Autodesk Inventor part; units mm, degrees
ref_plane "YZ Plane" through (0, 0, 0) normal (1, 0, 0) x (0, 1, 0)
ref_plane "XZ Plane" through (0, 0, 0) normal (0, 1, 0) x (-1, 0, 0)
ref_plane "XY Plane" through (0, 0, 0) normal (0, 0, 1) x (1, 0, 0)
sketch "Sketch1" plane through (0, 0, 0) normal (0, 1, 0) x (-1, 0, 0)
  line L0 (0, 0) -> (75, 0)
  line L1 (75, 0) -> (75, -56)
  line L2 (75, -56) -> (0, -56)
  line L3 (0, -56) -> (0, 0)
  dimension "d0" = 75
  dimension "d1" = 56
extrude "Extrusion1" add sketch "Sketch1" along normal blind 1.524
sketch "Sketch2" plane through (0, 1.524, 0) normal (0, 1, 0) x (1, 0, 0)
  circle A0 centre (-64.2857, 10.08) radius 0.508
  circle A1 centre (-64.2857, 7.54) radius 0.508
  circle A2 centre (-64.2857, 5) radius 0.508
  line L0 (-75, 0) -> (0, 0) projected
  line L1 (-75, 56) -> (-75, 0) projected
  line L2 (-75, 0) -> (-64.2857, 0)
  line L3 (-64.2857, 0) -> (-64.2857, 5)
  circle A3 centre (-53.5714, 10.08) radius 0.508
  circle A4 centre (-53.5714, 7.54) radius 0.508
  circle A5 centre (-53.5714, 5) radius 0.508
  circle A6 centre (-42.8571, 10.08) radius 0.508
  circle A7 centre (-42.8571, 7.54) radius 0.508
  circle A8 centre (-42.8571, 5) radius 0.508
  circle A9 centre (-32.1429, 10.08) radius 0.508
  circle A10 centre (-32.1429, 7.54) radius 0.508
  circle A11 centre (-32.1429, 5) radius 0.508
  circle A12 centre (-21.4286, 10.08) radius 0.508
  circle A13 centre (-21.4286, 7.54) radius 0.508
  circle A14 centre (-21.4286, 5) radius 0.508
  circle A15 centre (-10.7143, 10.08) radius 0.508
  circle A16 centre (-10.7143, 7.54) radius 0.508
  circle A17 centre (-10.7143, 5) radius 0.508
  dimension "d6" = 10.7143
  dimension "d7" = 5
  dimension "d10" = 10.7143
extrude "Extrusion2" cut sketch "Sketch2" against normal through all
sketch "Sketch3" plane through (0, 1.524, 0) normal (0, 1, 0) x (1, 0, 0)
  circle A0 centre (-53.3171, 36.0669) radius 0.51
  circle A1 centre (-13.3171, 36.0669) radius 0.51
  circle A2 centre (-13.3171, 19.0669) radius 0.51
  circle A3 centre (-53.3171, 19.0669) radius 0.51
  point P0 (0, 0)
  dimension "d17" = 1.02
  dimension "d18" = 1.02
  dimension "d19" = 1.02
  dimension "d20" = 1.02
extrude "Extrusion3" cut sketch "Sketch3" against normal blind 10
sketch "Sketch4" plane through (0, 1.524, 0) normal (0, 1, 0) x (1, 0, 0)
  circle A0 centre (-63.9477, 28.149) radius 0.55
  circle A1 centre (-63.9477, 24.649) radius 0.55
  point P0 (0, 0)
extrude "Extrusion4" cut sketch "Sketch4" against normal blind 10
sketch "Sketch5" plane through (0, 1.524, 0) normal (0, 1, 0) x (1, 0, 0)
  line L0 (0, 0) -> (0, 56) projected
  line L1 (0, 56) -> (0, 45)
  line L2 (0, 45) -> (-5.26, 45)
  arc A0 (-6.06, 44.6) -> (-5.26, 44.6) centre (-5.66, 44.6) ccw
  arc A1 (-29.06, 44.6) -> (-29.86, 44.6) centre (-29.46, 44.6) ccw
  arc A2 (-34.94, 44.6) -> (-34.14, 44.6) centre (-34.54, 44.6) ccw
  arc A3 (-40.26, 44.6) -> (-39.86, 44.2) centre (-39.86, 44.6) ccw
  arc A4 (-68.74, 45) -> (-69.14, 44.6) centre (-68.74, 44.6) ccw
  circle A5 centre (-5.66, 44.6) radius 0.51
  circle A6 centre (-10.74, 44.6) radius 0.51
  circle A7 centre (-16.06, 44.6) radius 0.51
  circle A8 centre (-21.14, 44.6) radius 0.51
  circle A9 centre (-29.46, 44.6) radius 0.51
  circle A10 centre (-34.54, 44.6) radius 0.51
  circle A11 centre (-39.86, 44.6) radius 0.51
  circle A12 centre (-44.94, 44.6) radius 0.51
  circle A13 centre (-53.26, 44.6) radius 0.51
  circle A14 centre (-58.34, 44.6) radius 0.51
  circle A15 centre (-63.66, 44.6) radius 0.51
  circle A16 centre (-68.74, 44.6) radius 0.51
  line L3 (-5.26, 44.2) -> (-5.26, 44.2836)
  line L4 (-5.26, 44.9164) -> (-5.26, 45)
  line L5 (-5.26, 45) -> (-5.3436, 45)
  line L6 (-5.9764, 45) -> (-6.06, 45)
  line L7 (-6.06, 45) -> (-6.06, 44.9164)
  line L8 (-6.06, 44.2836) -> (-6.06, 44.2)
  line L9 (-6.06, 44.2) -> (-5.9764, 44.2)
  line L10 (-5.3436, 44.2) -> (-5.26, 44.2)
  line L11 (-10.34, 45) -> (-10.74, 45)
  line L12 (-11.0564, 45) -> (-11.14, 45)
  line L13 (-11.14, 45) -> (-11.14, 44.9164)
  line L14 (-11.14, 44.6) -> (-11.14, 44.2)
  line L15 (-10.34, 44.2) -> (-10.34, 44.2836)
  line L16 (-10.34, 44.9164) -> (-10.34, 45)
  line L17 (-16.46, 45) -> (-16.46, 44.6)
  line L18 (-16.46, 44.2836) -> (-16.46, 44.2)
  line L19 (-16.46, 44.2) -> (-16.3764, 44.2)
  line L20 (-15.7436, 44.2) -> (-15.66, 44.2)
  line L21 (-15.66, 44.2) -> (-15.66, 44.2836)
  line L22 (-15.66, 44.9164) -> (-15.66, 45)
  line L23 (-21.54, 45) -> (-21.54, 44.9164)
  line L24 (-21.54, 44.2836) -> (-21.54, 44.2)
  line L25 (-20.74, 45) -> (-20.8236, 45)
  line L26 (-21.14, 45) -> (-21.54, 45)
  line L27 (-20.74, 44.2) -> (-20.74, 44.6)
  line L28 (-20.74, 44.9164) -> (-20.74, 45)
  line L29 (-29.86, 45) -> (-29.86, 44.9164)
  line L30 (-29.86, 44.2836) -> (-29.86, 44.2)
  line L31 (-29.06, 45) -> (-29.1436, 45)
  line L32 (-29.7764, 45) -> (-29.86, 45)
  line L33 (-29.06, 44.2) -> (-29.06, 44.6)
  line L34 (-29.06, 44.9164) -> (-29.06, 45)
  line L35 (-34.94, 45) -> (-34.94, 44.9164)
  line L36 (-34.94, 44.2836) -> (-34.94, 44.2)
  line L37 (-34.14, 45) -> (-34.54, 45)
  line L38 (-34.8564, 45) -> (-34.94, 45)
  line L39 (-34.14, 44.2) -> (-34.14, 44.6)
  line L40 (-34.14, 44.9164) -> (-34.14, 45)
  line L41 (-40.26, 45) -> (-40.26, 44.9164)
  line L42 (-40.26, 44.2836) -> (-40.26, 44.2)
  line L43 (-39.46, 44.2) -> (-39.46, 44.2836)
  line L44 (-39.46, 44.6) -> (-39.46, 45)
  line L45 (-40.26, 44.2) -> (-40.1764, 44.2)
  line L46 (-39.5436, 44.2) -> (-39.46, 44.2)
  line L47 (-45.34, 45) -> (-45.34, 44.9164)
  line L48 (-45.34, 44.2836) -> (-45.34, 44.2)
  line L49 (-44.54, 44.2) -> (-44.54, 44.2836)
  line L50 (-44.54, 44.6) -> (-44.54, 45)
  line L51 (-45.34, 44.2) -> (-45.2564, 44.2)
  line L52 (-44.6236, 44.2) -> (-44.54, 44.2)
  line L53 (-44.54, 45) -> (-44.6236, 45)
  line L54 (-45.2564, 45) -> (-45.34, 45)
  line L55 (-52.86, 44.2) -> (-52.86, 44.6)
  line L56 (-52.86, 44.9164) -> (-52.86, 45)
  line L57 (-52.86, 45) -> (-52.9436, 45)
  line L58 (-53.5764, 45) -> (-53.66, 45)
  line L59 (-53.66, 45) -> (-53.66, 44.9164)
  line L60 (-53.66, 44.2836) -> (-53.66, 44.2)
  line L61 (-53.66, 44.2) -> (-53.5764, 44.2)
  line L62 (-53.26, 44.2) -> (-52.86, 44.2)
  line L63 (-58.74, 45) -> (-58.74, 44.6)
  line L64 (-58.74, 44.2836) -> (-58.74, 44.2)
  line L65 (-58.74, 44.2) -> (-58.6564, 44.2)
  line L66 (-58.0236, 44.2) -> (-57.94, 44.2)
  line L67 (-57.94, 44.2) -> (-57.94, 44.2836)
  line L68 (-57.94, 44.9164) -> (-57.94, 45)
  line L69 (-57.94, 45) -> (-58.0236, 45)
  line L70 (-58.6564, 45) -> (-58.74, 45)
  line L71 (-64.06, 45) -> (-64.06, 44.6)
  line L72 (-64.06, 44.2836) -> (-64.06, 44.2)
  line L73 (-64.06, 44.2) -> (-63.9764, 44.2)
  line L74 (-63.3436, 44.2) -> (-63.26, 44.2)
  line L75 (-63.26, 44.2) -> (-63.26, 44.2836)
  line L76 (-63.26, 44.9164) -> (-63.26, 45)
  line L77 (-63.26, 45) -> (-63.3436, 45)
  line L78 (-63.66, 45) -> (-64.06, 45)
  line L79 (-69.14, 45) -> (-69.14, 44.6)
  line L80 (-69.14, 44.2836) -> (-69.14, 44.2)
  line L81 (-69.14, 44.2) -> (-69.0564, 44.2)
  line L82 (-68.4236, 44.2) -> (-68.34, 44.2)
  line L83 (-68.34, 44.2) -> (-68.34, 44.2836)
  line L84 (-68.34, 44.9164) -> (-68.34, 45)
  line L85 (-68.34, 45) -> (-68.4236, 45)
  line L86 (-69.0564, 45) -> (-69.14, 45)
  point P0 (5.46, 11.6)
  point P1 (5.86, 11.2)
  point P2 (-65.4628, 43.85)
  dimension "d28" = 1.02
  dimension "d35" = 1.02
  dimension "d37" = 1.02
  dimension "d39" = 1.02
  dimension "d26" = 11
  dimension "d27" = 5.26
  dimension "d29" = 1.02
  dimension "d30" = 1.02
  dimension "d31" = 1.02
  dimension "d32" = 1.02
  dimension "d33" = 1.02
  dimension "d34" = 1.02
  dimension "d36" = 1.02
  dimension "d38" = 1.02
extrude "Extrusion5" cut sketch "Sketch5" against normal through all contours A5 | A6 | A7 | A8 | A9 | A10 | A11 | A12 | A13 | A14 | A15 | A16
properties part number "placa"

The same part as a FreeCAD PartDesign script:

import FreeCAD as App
import Part
import Sketcher


def add_polygon(sketch, points):
    """Adds a closed chain of lines whose ends are joined by coincident constraints."""
    first, n = sketch.GeometryCount, len(points)
    for a, b in zip(points, points[1:] + points[:1]):
        sketch.addGeometry(Part.LineSegment(App.Vector(*a, 0), App.Vector(*b, 0)), False)
    for i in range(n):
        sketch.addConstraint(Sketcher.Constraint("Coincident", first + i, 2, first + (i + 1) % n, 1))

doc = App.newDocument("Part")
body = doc.addObject("PartDesign::Body", "Body")

sketch1 = body.newObject("Sketcher::SketchObject", "Sketch")
sketch1.AttachmentSupport = (doc.getObject("XZ_Plane"), [""])
sketch1.MapMode = "FlatFace"
add_polygon(sketch1, [(-75, 0), (0, 0), (0, -56), (-75, -56)])
sketch1.addConstraint(Sketcher.Constraint("Horizontal", 0))
sketch1.addConstraint(Sketcher.Constraint("Vertical", 1))
sketch1.addConstraint(Sketcher.Constraint("Horizontal", 2))
sketch1.addConstraint(Sketcher.Constraint("Vertical", 3))
sketch1.addConstraint(Sketcher.Constraint("Coincident", 0, 2, -1, 1))
sketch1.addConstraint(Sketcher.Constraint("DistanceX", 0, 1, 0, 2, 75.0))
sketch1.addConstraint(Sketcher.Constraint("DistanceY", 1, 2, 1, 1, 56.0))
pad1 = body.newObject("PartDesign::Pad", "Pad")
pad1.Profile = sketch1
pad1.Length = 1.524
pad1.Reversed = True

sketch2 = body.newObject("Sketcher::SketchObject", "Sketch001")
sketch2.AttachmentSupport = (doc.getObject("XZ_Plane"), [""])
sketch2.MapMode = "FlatFace"
sketch2.AttachmentOffset = App.Placement(App.Vector(0, 0, -1.524), App.Rotation())
sketch2.addGeometry(Part.Circle(App.Vector(-64.3, -10.1, 0), App.Vector(0, 0, 1), 0.5), False)
sketch2.addGeometry(Part.Circle(App.Vector(-64.3, -7.5, 0), App.Vector(0, 0, 1), 0.5), False)
sketch2.addGeometry(Part.Circle(App.Vector(-64.3, -5, 0), App.Vector(0, 0, 1), 0.5), False)
sketch2.addGeometry(Part.Circle(App.Vector(-53.6, -10.1, 0), App.Vector(0, 0, 1), 0.5), False)
sketch2.addGeometry(Part.Circle(App.Vector(-53.6, -7.5, 0), App.Vector(0, 0, 1), 0.5), False)
sketch2.addGeometry(Part.Circle(App.Vector(-53.6, -5, 0), App.Vector(0, 0, 1), 0.5), False)
sketch2.addGeometry(Part.Circle(App.Vector(-42.9, -10.1, 0), App.Vector(0, 0, 1), 0.5), False)
sketch2.addGeometry(Part.Circle(App.Vector(-42.9, -7.5, 0), App.Vector(0, 0, 1), 0.5), False)
sketch2.addGeometry(Part.Circle(App.Vector(-42.9, -5, 0), App.Vector(0, 0, 1), 0.5), False)
sketch2.addGeometry(Part.Circle(App.Vector(-32.1, -10.1, 0), App.Vector(0, 0, 1), 0.5), False)
sketch2.addGeometry(Part.Circle(App.Vector(-32.1, -7.5, 0), App.Vector(0, 0, 1), 0.5), False)
sketch2.addGeometry(Part.Circle(App.Vector(-32.1, -5, 0), App.Vector(0, 0, 1), 0.5), False)
sketch2.addGeometry(Part.Circle(App.Vector(-21.4, -10.1, 0), App.Vector(0, 0, 1), 0.5), False)
sketch2.addGeometry(Part.Circle(App.Vector(-21.4, -7.5, 0), App.Vector(0, 0, 1), 0.5), False)
sketch2.addGeometry(Part.Circle(App.Vector(-21.4, -5, 0), App.Vector(0, 0, 1), 0.5), False)
sketch2.addGeometry(Part.Circle(App.Vector(-10.7, -10.1, 0), App.Vector(0, 0, 1), 0.5), False)
sketch2.addGeometry(Part.Circle(App.Vector(-10.7, -7.5, 0), App.Vector(0, 0, 1), 0.5), False)
sketch2.addGeometry(Part.Circle(App.Vector(-10.7, -5, 0), App.Vector(0, 0, 1), 0.5), False)
sketch2.addConstraint(Sketcher.Constraint("Equal", 0, 1))
sketch2.addConstraint(Sketcher.Constraint("Equal", 1, 2))
sketch2.addConstraint(Sketcher.Constraint("Equal", 2, 3))
sketch2.addConstraint(Sketcher.Constraint("Equal", 3, 4))
sketch2.addConstraint(Sketcher.Constraint("Equal", 4, 5))
sketch2.addConstraint(Sketcher.Constraint("Equal", 5, 6))
sketch2.addConstraint(Sketcher.Constraint("Equal", 6, 7))
sketch2.addConstraint(Sketcher.Constraint("Equal", 7, 8))
sketch2.addConstraint(Sketcher.Constraint("Equal", 8, 9))
sketch2.addConstraint(Sketcher.Constraint("Equal", 9, 10))
sketch2.addConstraint(Sketcher.Constraint("Equal", 10, 11))
sketch2.addConstraint(Sketcher.Constraint("Equal", 11, 12))
sketch2.addConstraint(Sketcher.Constraint("Equal", 12, 13))
sketch2.addConstraint(Sketcher.Constraint("Equal", 13, 14))
sketch2.addConstraint(Sketcher.Constraint("Equal", 14, 15))
sketch2.addConstraint(Sketcher.Constraint("Equal", 15, 16))
sketch2.addConstraint(Sketcher.Constraint("Equal", 16, 17))
sketch2.addConstraint(Sketcher.Constraint("Horizontal", 0, 3, 3, 3))
sketch2.addConstraint(Sketcher.Constraint("Horizontal", 1, 3, 4, 3))
sketch2.addConstraint(Sketcher.Constraint("Horizontal", 2, 3, 5, 3))
sketch2.addConstraint(Sketcher.Constraint("Horizontal", 3, 3, 6, 3))
sketch2.addConstraint(Sketcher.Constraint("Horizontal", 4, 3, 7, 3))
sketch2.addConstraint(Sketcher.Constraint("Horizontal", 5, 3, 8, 3))
sketch2.addConstraint(Sketcher.Constraint("Horizontal", 6, 3, 9, 3))
sketch2.addConstraint(Sketcher.Constraint("Horizontal", 7, 3, 10, 3))
sketch2.addConstraint(Sketcher.Constraint("Horizontal", 8, 3, 11, 3))
sketch2.addConstraint(Sketcher.Constraint("Horizontal", 9, 3, 12, 3))
sketch2.addConstraint(Sketcher.Constraint("Horizontal", 10, 3, 13, 3))
sketch2.addConstraint(Sketcher.Constraint("Horizontal", 11, 3, 14, 3))
sketch2.addConstraint(Sketcher.Constraint("Horizontal", 12, 3, 15, 3))
sketch2.addConstraint(Sketcher.Constraint("Horizontal", 13, 3, 16, 3))
sketch2.addConstraint(Sketcher.Constraint("Horizontal", 14, 3, 17, 3))
sketch2.addConstraint(Sketcher.Constraint("Vertical", 0, 3, 1, 3))
sketch2.addConstraint(Sketcher.Constraint("Vertical", 1, 3, 2, 3))
sketch2.addConstraint(Sketcher.Constraint("Vertical", 3, 3, 4, 3))
sketch2.addConstraint(Sketcher.Constraint("Vertical", 4, 3, 5, 3))
sketch2.addConstraint(Sketcher.Constraint("Vertical", 6, 3, 7, 3))
sketch2.addConstraint(Sketcher.Constraint("Vertical", 7, 3, 8, 3))
sketch2.addConstraint(Sketcher.Constraint("Vertical", 9, 3, 10, 3))
sketch2.addConstraint(Sketcher.Constraint("Vertical", 10, 3, 11, 3))
sketch2.addConstraint(Sketcher.Constraint("Vertical", 12, 3, 13, 3))
sketch2.addConstraint(Sketcher.Constraint("Vertical", 13, 3, 14, 3))
sketch2.addConstraint(Sketcher.Constraint("Vertical", 15, 3, 16, 3))
sketch2.addConstraint(Sketcher.Constraint("Vertical", 16, 3, 17, 3))
sketch2.addConstraint(Sketcher.Constraint("DistanceY", 2, 3, -1, 1, 5.0))
sketch2.addConstraint(Sketcher.Constraint("Diameter", 0, 1.016))
sketch2.addConstraint(Sketcher.Constraint("DistanceX", 15, 3, -1, 1, 10.7143))
sketch2.addConstraint(Sketcher.Constraint("DistanceX", 0, 3, 3, 3, 10.7143))
sketch2.addConstraint(Sketcher.Constraint("DistanceX", 3, 3, 6, 3, 10.7143))
sketch2.addConstraint(Sketcher.Constraint("DistanceX", 6, 3, 9, 3, 10.7142))
sketch2.addConstraint(Sketcher.Constraint("DistanceX", 9, 3, 12, 3, 10.7143))
sketch2.addConstraint(Sketcher.Constraint("DistanceX", 12, 3, 15, 3, 10.7143))
sketch2.addConstraint(Sketcher.Constraint("DistanceY", 0, 3, -1, 1, 10.08))
sketch2.addConstraint(Sketcher.Constraint("DistanceY", 1, 3, -1, 1, 7.54))
pocket1 = body.newObject("PartDesign::Pocket", "Pocket")
pocket1.Profile = sketch2
pocket1.Type = "ThroughAll"
pocket1.Reversed = True

sketch3 = body.newObject("Sketcher::SketchObject", "Sketch002")
sketch3.AttachmentSupport = (doc.getObject("XZ_Plane"), [""])
sketch3.MapMode = "FlatFace"
sketch3.AttachmentOffset = App.Placement(App.Vector(0, 0, -1.524), App.Rotation())
sketch3.addGeometry(Part.Circle(App.Vector(-53.3, -36.1, 0), App.Vector(0, 0, 1), 0.5), False)
sketch3.addGeometry(Part.Circle(App.Vector(-13.3, -36.1, 0), App.Vector(0, 0, 1), 0.5), False)
sketch3.addGeometry(Part.Circle(App.Vector(-13.3, -19.1, 0), App.Vector(0, 0, 1), 0.5), False)
sketch3.addGeometry(Part.Circle(App.Vector(-53.3, -19.1, 0), App.Vector(0, 0, 1), 0.5), False)
sketch3.addConstraint(Sketcher.Constraint("Equal", 0, 1))
sketch3.addConstraint(Sketcher.Constraint("Equal", 1, 2))
sketch3.addConstraint(Sketcher.Constraint("Equal", 2, 3))
sketch3.addConstraint(Sketcher.Constraint("Horizontal", 0, 3, 1, 3))
sketch3.addConstraint(Sketcher.Constraint("Horizontal", 2, 3, 3, 3))
sketch3.addConstraint(Sketcher.Constraint("Vertical", 1, 3, 2, 3))
sketch3.addConstraint(Sketcher.Constraint("Vertical", 0, 3, 3, 3))
sketch3.addConstraint(Sketcher.Constraint("Diameter", 0, 1.02))
sketch3.addConstraint(Sketcher.Constraint("DistanceX", 0, 3, 1, 3, 40.0))
sketch3.addConstraint(Sketcher.Constraint("DistanceY", 1, 3, 2, 3, 17.0))
sketch3.addConstraint(Sketcher.Constraint("DistanceX", 0, 3, -1, 1, 53.317))
sketch3.addConstraint(Sketcher.Constraint("DistanceY", 0, 3, -1, 1, 36.067))
pocket2 = body.newObject("PartDesign::Pocket", "Pocket001")
pocket2.Profile = sketch3
pocket2.Length = 10
pocket2.Reversed = True

sketch4 = body.newObject("Sketcher::SketchObject", "Sketch003")
sketch4.AttachmentSupport = (doc.getObject("XZ_Plane"), [""])
sketch4.MapMode = "FlatFace"
sketch4.AttachmentOffset = App.Placement(App.Vector(0, 0, -1.524), App.Rotation())
sketch4.addGeometry(Part.Circle(App.Vector(-63.9, -28.1, 0), App.Vector(0, 0, 1), 0.6), False)
sketch4.addGeometry(Part.Circle(App.Vector(-63.9, -24.6, 0), App.Vector(0, 0, 1), 0.6), False)
sketch4.addConstraint(Sketcher.Constraint("Equal", 0, 1))
sketch4.addConstraint(Sketcher.Constraint("Vertical", 0, 3, 1, 3))
sketch4.addConstraint(Sketcher.Constraint("Diameter", 0, 1.1))
sketch4.addConstraint(Sketcher.Constraint("DistanceY", 0, 3, 1, 3, 3.5))
sketch4.addConstraint(Sketcher.Constraint("DistanceY", 0, 3, -1, 1, 28.149))
sketch4.addConstraint(Sketcher.Constraint("DistanceX", 0, 3, -1, 1, 63.9477))
pocket3 = body.newObject("PartDesign::Pocket", "Pocket002")
pocket3.Profile = sketch4
pocket3.Length = 10
pocket3.Reversed = True

sketch5 = body.newObject("Sketcher::SketchObject", "Sketch004")
sketch5.AttachmentSupport = (doc.getObject("XZ_Plane"), [""])
sketch5.MapMode = "FlatFace"
sketch5.AttachmentOffset = App.Placement(App.Vector(0, 0, -1.524), App.Rotation())
sketch5.addGeometry(Part.Circle(App.Vector(-5.7, -44.6, 0), App.Vector(0, 0, 1), 0.5), False)
sketch5.addGeometry(Part.Circle(App.Vector(-10.7, -44.6, 0), App.Vector(0, 0, 1), 0.5), False)
sketch5.addGeometry(Part.Circle(App.Vector(-16.1, -44.6, 0), App.Vector(0, 0, 1), 0.5), False)
sketch5.addGeometry(Part.Circle(App.Vector(-21.1, -44.6, 0), App.Vector(0, 0, 1), 0.5), False)
sketch5.addGeometry(Part.Circle(App.Vector(-29.5, -44.6, 0), App.Vector(0, 0, 1), 0.5), False)
sketch5.addGeometry(Part.Circle(App.Vector(-34.5, -44.6, 0), App.Vector(0, 0, 1), 0.5), False)
sketch5.addGeometry(Part.Circle(App.Vector(-39.9, -44.6, 0), App.Vector(0, 0, 1), 0.5), False)
sketch5.addGeometry(Part.Circle(App.Vector(-44.9, -44.6, 0), App.Vector(0, 0, 1), 0.5), False)
sketch5.addGeometry(Part.Circle(App.Vector(-53.3, -44.6, 0), App.Vector(0, 0, 1), 0.5), False)
sketch5.addGeometry(Part.Circle(App.Vector(-58.3, -44.6, 0), App.Vector(0, 0, 1), 0.5), False)
sketch5.addGeometry(Part.Circle(App.Vector(-63.7, -44.6, 0), App.Vector(0, 0, 1), 0.5), False)
sketch5.addGeometry(Part.Circle(App.Vector(-68.7, -44.6, 0), App.Vector(0, 0, 1), 0.5), False)
sketch5.addConstraint(Sketcher.Constraint("Equal", 0, 1))
sketch5.addConstraint(Sketcher.Constraint("Equal", 1, 2))
sketch5.addConstraint(Sketcher.Constraint("Equal", 2, 3))
sketch5.addConstraint(Sketcher.Constraint("Equal", 3, 4))
sketch5.addConstraint(Sketcher.Constraint("Equal", 4, 5))
sketch5.addConstraint(Sketcher.Constraint("Equal", 5, 6))
sketch5.addConstraint(Sketcher.Constraint("Equal", 6, 7))
sketch5.addConstraint(Sketcher.Constraint("Equal", 7, 8))
sketch5.addConstraint(Sketcher.Constraint("Equal", 8, 9))
sketch5.addConstraint(Sketcher.Constraint("Equal", 9, 10))
sketch5.addConstraint(Sketcher.Constraint("Equal", 10, 11))
sketch5.addConstraint(Sketcher.Constraint("Horizontal", 0, 3, 1, 3))
sketch5.addConstraint(Sketcher.Constraint("Horizontal", 1, 3, 2, 3))
sketch5.addConstraint(Sketcher.Constraint("Horizontal", 2, 3, 3, 3))
sketch5.addConstraint(Sketcher.Constraint("Horizontal", 3, 3, 4, 3))
sketch5.addConstraint(Sketcher.Constraint("Horizontal", 4, 3, 5, 3))
sketch5.addConstraint(Sketcher.Constraint("Horizontal", 5, 3, 6, 3))
sketch5.addConstraint(Sketcher.Constraint("Horizontal", 6, 3, 7, 3))
sketch5.addConstraint(Sketcher.Constraint("Horizontal", 7, 3, 8, 3))
sketch5.addConstraint(Sketcher.Constraint("Horizontal", 8, 3, 9, 3))
sketch5.addConstraint(Sketcher.Constraint("Horizontal", 9, 3, 10, 3))
sketch5.addConstraint(Sketcher.Constraint("Horizontal", 10, 3, 11, 3))
sketch5.addConstraint(Sketcher.Constraint("Diameter", 0, 1.02))
sketch5.addConstraint(Sketcher.Constraint("DistanceY", 0, 3, -1, 1, 44.6))
sketch5.addConstraint(Sketcher.Constraint("DistanceX", 2, 3, 0, 3, 10.4))
sketch5.addConstraint(Sketcher.Constraint("DistanceX", 3, 3, 1, 3, 10.4))
sketch5.addConstraint(Sketcher.Constraint("DistanceX", 4, 3, 2, 3, 13.4))
sketch5.addConstraint(Sketcher.Constraint("DistanceX", 5, 3, 3, 3, 13.4))
sketch5.addConstraint(Sketcher.Constraint("DistanceX", 6, 3, 4, 3, 10.4))
sketch5.addConstraint(Sketcher.Constraint("DistanceX", 7, 3, 5, 3, 10.4))
sketch5.addConstraint(Sketcher.Constraint("DistanceX", 8, 3, 6, 3, 13.4))
sketch5.addConstraint(Sketcher.Constraint("DistanceX", 9, 3, 7, 3, 13.4))
sketch5.addConstraint(Sketcher.Constraint("DistanceX", 10, 3, 8, 3, 10.4))
sketch5.addConstraint(Sketcher.Constraint("DistanceX", 11, 3, 9, 3, 10.4))
sketch5.addConstraint(Sketcher.Constraint("DistanceX", 0, 3, -1, 1, 5.66))
sketch5.addConstraint(Sketcher.Constraint("DistanceX", 1, 3, -1, 1, 10.74))
pocket4 = body.newObject("PartDesign::Pocket", "Pocket003")
pocket4.Profile = sketch5
pocket4.Type = "ThroughAll"
pocket4.Reversed = True

doc.recompute()
